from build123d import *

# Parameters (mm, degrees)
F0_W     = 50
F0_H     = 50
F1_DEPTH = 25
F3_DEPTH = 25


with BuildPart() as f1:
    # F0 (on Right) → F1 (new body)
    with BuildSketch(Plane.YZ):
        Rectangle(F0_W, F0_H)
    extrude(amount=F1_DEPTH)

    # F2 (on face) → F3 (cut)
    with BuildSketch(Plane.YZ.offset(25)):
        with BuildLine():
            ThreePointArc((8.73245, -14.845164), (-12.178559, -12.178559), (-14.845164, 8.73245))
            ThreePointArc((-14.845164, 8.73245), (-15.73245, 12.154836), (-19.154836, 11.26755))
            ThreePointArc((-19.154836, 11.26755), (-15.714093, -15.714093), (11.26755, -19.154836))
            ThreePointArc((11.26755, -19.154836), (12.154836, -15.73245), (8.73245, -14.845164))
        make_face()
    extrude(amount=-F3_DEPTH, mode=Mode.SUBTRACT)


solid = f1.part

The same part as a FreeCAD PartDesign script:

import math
import FreeCAD as App
import Part
import Sketcher
from FreeCAD import Vector

doc = App.newDocument("Part")
body = doc.addObject("PartDesign::Body", "Body")

# Sketch on YZ plane
sketch1 = doc.addObject("Sketcher::SketchObject", "Sketch")
body.addObject(sketch1)
sketch1.AttachmentSupport = (doc.YZ_Plane, [""])
sketch1.MapMode = "FlatFace"
sketch1.addGeometry([
    Part.LineSegment(Vector(-25, 25, 0), Vector(-25, -25, 0)),
    Part.LineSegment(Vector(-25, -25, 0), Vector(25, -25, 0)),
    Part.LineSegment(Vector(25, -25, 0), Vector(25, 25, 0)),
    Part.LineSegment(Vector(25, 25, 0), Vector(-25, 25, 0)),
], False)
sketch1.addConstraint([
    Sketcher.Constraint("Coincident", 0, 2, 1, 1),
    Sketcher.Constraint("Coincident", 1, 2, 2, 1),
    Sketcher.Constraint("Coincident", 2, 2, 3, 1),
    Sketcher.Constraint("Coincident", 3, 2, 0, 1),
    Sketcher.Constraint("Vertical", 0),
    Sketcher.Constraint("Horizontal", 1),
    Sketcher.Constraint("Vertical", 2),
    Sketcher.Constraint("Horizontal", 3),
    Sketcher.Constraint("Symmetric", 0, 2, 2, 2, -1, 1),
    Sketcher.Constraint("Equal", 3, 0),
    Sketcher.Constraint("DistanceX", 1, 1, 1, 2, 50.0),
])
pad1 = doc.addObject("PartDesign::Pad", "Pad")
body.addObject(pad1)
pad1.Profile = sketch1
pad1.Length = 25

# Sketch on YZ plane
sketch2 = doc.addObject("Sketcher::SketchObject", "Sketch001")
body.addObject(sketch2)
sketch2.AttachmentSupport = (doc.YZ_Plane, [""])
sketch2.MapMode = "FlatFace"
sketch2.AttachmentOffset = App.Placement(Vector(0, 0, 25), App.Rotation())
sketch2.addGeometry([
    Part.ArcOfCircle(Part.Circle(Vector(0, 0, 0), Vector(0, 0, 1), 17.2), math.radians(150), math.radians(300)),
    Part.ArcOfCircle(Part.Circle(Vector(-17, 10, 0), Vector(0, 0, 1), 2.5), math.radians(-30), math.radians(150)),
    Part.ArcOfCircle(Part.Circle(Vector(0, 0, 0), Vector(0, 0, 1), 22.2), math.radians(150), math.radians(300)),
    Part.ArcOfCircle(Part.Circle(Vector(10, -17, 0), Vector(0, 0, 1), 2.5), math.radians(-60), math.radians(120)),
], False)
sketch2.addConstraint([
    Sketcher.Constraint("Tangent", 0, 1, 1, 1),
    Sketcher.Constraint("Tangent", 1, 2, 2, 1),
    Sketcher.Constraint("Tangent", 2, 2, 3, 1),
    Sketcher.Constraint("Tangent", 3, 2, 0, 2),
    Sketcher.Constraint("Coincident", 0, 3, -1, 1),
    Sketcher.Constraint("Coincident", 2, 3, -1, 1),
    Sketcher.Constraint("Radius", 1, 2.5),
    Sketcher.Constraint("DistanceX", 1, 3, -1, 1, 17.0),
    Sketcher.Constraint("DistanceY", -1, 1, 1, 3, 10.0),
    Sketcher.Constraint("DistanceX", -1, 1, 3, 3, 10.0),
])
pocket1 = doc.addObject("PartDesign::Pocket", "Pocket")
body.addObject(pocket1)
pocket1.Profile = sketch2
pocket1.Length = 25

doc.recompute()
